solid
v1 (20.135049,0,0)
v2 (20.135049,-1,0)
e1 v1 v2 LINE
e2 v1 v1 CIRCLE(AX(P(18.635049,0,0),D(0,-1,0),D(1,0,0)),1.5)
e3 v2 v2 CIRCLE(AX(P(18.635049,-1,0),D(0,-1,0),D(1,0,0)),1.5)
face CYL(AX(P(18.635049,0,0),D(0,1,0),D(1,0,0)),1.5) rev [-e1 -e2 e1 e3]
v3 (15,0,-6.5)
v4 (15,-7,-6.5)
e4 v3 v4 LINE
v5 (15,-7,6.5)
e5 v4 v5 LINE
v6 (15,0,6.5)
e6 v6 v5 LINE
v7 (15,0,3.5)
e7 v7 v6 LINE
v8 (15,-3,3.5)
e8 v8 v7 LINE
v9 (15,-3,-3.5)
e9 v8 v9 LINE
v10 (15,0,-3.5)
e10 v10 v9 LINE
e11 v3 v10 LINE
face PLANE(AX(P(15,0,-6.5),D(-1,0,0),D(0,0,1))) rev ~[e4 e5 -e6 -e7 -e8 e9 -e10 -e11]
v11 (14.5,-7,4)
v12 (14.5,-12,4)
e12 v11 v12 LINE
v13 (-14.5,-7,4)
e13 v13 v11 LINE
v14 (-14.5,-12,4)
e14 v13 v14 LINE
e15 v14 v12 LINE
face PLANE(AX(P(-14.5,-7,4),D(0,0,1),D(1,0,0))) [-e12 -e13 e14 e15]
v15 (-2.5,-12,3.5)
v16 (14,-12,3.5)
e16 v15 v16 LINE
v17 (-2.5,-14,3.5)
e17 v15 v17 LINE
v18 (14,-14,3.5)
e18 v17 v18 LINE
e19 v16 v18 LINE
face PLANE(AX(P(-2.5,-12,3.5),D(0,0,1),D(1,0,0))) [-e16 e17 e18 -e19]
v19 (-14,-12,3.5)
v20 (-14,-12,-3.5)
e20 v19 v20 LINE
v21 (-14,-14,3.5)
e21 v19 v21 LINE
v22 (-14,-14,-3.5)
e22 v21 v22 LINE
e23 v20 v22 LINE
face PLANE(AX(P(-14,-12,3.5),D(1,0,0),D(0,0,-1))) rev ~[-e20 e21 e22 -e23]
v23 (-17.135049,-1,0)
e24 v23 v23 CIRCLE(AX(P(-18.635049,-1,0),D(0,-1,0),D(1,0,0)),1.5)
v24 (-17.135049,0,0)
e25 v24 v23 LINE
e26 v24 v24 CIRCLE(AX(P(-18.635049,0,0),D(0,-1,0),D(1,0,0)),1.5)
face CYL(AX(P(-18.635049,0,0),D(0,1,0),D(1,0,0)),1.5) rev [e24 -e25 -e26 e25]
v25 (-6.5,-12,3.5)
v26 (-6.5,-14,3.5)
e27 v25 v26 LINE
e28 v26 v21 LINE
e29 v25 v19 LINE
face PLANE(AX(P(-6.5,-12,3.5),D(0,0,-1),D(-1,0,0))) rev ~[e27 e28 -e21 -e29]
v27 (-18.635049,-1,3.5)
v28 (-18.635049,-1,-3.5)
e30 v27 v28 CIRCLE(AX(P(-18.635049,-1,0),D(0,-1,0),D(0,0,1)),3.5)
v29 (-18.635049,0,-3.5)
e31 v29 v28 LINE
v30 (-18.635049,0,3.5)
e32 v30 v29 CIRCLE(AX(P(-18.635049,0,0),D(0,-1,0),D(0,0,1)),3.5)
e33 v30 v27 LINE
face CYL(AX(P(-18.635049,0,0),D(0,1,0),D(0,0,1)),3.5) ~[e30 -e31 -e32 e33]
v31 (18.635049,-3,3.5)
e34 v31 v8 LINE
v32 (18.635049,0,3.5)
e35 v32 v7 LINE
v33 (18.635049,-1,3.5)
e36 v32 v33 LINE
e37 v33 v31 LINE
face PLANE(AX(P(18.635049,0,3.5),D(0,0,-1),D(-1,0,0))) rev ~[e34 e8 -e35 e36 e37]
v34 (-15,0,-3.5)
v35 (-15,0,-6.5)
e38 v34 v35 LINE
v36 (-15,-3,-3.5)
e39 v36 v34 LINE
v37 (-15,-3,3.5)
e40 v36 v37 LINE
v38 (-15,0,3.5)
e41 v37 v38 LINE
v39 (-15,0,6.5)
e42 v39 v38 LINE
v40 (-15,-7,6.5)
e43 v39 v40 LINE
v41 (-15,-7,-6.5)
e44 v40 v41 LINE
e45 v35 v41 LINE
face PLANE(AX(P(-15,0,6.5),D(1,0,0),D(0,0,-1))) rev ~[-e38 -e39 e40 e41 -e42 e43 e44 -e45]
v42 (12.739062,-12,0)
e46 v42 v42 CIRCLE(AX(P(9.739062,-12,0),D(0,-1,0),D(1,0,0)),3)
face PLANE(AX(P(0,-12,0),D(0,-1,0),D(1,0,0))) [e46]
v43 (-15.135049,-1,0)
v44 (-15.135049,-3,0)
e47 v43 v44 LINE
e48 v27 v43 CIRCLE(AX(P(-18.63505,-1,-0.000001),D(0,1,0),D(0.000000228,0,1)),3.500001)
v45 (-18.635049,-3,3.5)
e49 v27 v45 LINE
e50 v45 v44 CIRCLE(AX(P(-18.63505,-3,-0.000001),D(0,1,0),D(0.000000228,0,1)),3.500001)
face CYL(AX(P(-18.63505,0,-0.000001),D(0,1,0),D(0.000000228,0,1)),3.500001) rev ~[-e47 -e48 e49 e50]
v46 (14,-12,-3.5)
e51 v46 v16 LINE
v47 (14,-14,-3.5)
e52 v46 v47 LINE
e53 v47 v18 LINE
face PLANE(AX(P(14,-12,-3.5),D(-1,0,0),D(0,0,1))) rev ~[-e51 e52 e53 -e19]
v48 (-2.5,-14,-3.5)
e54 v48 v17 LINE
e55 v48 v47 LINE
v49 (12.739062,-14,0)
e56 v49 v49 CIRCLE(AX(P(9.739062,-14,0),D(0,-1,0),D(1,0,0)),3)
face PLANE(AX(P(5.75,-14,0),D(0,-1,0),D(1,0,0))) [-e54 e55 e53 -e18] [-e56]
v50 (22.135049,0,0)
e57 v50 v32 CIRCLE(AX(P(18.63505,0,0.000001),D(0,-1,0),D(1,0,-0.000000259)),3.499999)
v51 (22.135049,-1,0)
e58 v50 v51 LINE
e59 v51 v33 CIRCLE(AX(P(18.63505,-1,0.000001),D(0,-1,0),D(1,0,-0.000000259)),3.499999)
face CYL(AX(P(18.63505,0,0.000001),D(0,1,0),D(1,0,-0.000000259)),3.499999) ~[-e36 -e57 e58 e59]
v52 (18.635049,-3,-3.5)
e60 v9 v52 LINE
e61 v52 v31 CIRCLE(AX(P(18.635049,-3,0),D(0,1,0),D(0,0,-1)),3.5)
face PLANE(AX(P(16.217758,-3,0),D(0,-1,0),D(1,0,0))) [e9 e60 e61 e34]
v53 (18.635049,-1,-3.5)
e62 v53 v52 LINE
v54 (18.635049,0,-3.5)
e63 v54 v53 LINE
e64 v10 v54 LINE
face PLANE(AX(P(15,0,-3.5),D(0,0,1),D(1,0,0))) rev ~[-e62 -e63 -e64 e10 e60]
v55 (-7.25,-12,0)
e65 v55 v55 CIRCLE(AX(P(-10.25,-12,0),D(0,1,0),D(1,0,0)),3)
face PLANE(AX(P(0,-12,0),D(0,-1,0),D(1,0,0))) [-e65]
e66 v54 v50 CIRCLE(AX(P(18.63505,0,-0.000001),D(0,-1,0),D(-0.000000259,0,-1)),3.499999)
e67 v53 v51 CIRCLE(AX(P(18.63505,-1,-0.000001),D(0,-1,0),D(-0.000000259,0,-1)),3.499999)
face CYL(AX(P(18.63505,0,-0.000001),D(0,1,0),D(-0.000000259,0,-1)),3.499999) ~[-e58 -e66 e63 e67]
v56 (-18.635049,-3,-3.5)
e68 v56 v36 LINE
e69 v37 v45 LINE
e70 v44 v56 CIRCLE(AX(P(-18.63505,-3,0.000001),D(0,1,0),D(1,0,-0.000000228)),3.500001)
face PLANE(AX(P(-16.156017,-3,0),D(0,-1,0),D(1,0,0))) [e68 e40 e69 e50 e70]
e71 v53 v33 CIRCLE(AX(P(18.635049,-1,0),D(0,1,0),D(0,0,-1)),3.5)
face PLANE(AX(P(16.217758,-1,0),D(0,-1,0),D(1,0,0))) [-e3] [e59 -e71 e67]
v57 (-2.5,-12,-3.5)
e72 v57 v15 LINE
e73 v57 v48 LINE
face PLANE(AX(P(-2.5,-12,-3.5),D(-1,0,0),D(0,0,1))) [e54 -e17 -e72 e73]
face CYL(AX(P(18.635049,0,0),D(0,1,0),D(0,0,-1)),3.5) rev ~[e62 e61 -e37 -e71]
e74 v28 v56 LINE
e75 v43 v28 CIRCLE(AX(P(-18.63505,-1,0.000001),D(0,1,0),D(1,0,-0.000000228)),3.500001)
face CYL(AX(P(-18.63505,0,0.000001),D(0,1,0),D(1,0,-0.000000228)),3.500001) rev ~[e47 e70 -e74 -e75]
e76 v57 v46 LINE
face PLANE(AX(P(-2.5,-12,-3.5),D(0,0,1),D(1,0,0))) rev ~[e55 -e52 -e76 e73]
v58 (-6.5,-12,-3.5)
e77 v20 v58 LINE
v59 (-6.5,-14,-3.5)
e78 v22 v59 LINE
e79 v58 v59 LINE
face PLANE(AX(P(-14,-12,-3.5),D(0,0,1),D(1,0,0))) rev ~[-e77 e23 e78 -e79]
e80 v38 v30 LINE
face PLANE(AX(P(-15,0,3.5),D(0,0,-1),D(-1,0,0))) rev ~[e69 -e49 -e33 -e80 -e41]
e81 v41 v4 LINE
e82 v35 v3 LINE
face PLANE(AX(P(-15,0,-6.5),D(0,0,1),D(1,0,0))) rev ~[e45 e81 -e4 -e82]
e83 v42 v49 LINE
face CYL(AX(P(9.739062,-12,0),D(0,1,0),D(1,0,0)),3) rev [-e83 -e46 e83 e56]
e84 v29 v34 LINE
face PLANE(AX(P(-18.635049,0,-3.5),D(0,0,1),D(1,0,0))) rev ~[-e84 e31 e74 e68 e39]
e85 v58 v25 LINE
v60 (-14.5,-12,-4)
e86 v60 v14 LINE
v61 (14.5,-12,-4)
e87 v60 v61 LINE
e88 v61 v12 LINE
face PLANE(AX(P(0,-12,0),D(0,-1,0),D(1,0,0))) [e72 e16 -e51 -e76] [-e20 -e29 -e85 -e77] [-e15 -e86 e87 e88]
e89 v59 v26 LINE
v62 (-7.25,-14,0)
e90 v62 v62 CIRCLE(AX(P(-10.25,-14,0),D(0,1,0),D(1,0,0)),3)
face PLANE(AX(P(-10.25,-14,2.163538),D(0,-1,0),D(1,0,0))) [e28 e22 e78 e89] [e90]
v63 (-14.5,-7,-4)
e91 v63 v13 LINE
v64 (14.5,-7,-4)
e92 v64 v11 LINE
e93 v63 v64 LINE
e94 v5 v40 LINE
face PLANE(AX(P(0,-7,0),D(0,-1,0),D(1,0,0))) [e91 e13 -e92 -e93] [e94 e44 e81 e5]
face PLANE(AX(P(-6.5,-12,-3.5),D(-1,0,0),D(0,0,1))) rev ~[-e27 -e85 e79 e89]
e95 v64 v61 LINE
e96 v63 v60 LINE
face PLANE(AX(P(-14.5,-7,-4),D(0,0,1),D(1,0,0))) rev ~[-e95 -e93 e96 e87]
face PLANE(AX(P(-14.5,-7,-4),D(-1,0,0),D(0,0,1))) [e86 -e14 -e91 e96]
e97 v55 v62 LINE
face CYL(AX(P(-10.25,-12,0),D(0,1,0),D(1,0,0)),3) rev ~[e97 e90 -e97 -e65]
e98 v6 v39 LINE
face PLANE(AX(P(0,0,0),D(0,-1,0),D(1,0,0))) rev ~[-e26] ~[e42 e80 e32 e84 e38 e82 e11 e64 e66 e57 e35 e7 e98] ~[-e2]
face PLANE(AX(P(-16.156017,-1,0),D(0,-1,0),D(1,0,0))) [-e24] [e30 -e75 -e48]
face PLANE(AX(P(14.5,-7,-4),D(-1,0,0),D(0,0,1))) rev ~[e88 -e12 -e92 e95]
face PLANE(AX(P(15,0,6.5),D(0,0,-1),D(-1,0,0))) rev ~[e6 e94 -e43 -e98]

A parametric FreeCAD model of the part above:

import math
import FreeCAD as App
import Part
import Sketcher


def add_polygon(sketch, points):
    """Adds a closed chain of lines whose ends are joined by coincident constraints."""
    first, n = sketch.GeometryCount, len(points)
    for a, b in zip(points, points[1:] + points[:1]):
        sketch.addGeometry(Part.LineSegment(App.Vector(*a, 0), App.Vector(*b, 0)), False)
    for i in range(n):
        sketch.addConstraint(Sketcher.Constraint("Coincident", first + i, 2, first + (i + 1) % n, 1))

doc = App.newDocument("Part")
body = doc.addObject("PartDesign::Body", "Body")

# Sketch on XZ plane
sketch1 = body.newObject("Sketcher::SketchObject", "Sketch")
sketch1.AttachmentSupport = (doc.getObject("XZ_Plane"), [""])
sketch1.MapMode = "FlatFace"
add_polygon(sketch1, [(15, 6), (-15, 6), (-15, -6), (15, -6)])  # lines 0-3
sketch1.addConstraint([
    Sketcher.Constraint("Horizontal", 0),
    Sketcher.Constraint("Vertical", 1),
    Sketcher.Constraint("Horizontal", 2),
    Sketcher.Constraint("Vertical", 3),
    Sketcher.Constraint("Symmetric", 0, 2, 2, 2, -1, 1),
    Sketcher.Constraint("DistanceX", 0, 2, 0, 1, 30.0),
    Sketcher.Constraint("DistanceY", 1, 2, 1, 1, 13.0),
])
pad1 = body.newObject("PartDesign::Pad", "Pad")
pad1.Profile = sketch1
pad1.Length = 7

# Sketch on XZ plane
sketch2 = body.newObject("Sketcher::SketchObject", "Sketch001")
sketch2.AttachmentSupport = (doc.getObject("XZ_Plane"), [""])
sketch2.MapMode = "FlatFace"
sketch2.AttachmentOffset = App.Placement(App.Vector(0, 0, 7), App.Rotation())
add_polygon(sketch2, [(-14, 4), (-14, -4), (14, -4), (14, 4)])  # lines 0-3
sketch2.addConstraint([
    Sketcher.Constraint("Vertical", 0),
    Sketcher.Constraint("Horizontal", 1),
    Sketcher.Constraint("Vertical", 2),
    Sketcher.Constraint("Horizontal", 3),
    Sketcher.Constraint("Symmetric", 0, 2, 2, 2, -1, 1),
    Sketcher.Constraint("DistanceX", 1, 1, 1, 2, 29.0),
    Sketcher.Constraint("DistanceY", 0, 2, 0, 1, 8.0),
])
pad2 = body.newObject("PartDesign::Pad", "Pad001")
pad2.Profile = sketch2
pad2.Length = 5

# Sketch on XZ plane
sketch3 = body.newObject("Sketcher::SketchObject", "Sketch002")
sketch3.AttachmentSupport = (doc.getObject("XZ_Plane"), [""])
sketch3.MapMode = "FlatFace"
sketch3.AttachmentOffset = App.Placement(App.Vector(0, 0, 12), App.Rotation())
add_polygon(sketch3, [(-6.5, 3.5), (-14, 3.5), (-14, -3.5), (-6.5, -3.5)])  # lines 0-3
sketch3.addGeometry(Part.Circle(App.Vector(-10.2, 0, 0), App.Vector(0, 0, 1), 3), False)  # 4
add_polygon(sketch3, [(-2.5, 3.5), (-2.5, -3.5), (14, -3.5), (14, 3.5)])  # lines 5-8
sketch3.addGeometry(Part.Circle(App.Vector(9.7, 0, 0), App.Vector(0, 0, 1), 3), False)  # 9
sketch3.addConstraint([
    Sketcher.Constraint("Horizontal", 0),
    Sketcher.Constraint("Vertical", 1),
    Sketcher.Constraint("Horizontal", 2),
    Sketcher.Constraint("Vertical", 3),
    Sketcher.Constraint("Vertical", 5),
    Sketcher.Constraint("Horizontal", 6),
    Sketcher.Constraint("Vertical", 7),
    Sketcher.Constraint("Horizontal", 8),
    Sketcher.Constraint("Equal", 4, 9),
    Sketcher.Constraint("Symmetric", 0, 2, 6, 2, -1, 1),
    Sketcher.Constraint("PointOnObject", 4, 3, -1),
    Sketcher.Constraint("PointOnObject", 9, 3, -1),
    Sketcher.Constraint("Horizontal", 2, 2, 5, 2),
    Sketcher.Constraint("Horizontal", 3, 2, 7, 2),
    Sketcher.Constraint("Diameter", 4, 6.0),
    Sketcher.Constraint("DistanceY", 1, 2, 1, 1, 7.0),
    Sketcher.Constraint("DistanceX", 0, 2, 0, 1, 7.5),
    Sketcher.Constraint("DistanceX", 6, 1, 6, 2, 16.5),
    Sketcher.Constraint("DistanceX", 0, 2, -1, 1, 14.0),
    Sketcher.Constraint("DistanceX", 4, 3, -1, 1, 10.25),
    Sketcher.Constraint("DistanceX", -1, 1, 9, 3, 9.739062),
])
pad3 = body.newObject("PartDesign::Pad", "Pad002")
pad3.Profile = sketch3
pad3.Length = 2

# Sketch on XZ plane
sketch4 = body.newObject("Sketcher::SketchObject", "Sketch003")
sketch4.AttachmentSupport = (doc.getObject("XZ_Plane"), [""])
sketch4.MapMode = "FlatFace"
sketch4.addGeometry([
    Part.LineSegment(App.Vector(-15, -3.5, 0), App.Vector(-15, 3.5, 0)),  # 0
    Part.LineSegment(App.Vector(-15, 3.5, 0), App.Vector(-18.6, 3.5, 0)),  # 1
    Part.ArcOfCircle(Part.Circle(App.Vector(-18.6, 0, 0), App.Vector(0, 0, 1), 3.5), math.radians(90), math.radians(270)),  # 2
    Part.LineSegment(App.Vector(-18.6, -3.5, 0), App.Vector(-15, -3.5, 0)),  # 3
    Part.Circle(App.Vector(-18.6, 0, 0), App.Vector(0, 0, 1), 1.5),  # 4
    Part.LineSegment(App.Vector(18.6, 3.5, 0), App.Vector(15, 3.5, 0)),  # 5
    Part.LineSegment(App.Vector(15, 3.5, 0), App.Vector(15, -3.5, 0)),  # 6
    Part.LineSegment(App.Vector(15, -3.5, 0), App.Vector(18.6, -3.5, 0)),  # 7
    Part.ArcOfCircle(Part.Circle(App.Vector(18.6, 0, 0), App.Vector(0, 0, 1), 3.5), math.radians(-90), math.radians(0)),  # 8
    Part.ArcOfCircle(Part.Circle(App.Vector(18.6, 0, 0), App.Vector(0, 0, 1), 3.5), math.radians(0), math.radians(90)),  # 9
    Part.Circle(App.Vector(18.6, 0, 0), App.Vector(0, 0, 1), 1.5),  # 10
], False)
sketch4.addConstraint([
    Sketcher.Constraint("Coincident", 0, 2, 1, 1),
    Sketcher.Constraint("Tangent", 1, 2, 2, 1),
    Sketcher.Constraint("Tangent", 2, 2, 3, 1),
    Sketcher.Constraint("Coincident", 3, 2, 0, 1),
    Sketcher.Constraint("Coincident", 5, 2, 6, 1),
    Sketcher.Constraint("Coincident", 6, 2, 7, 1),
    Sketcher.Constraint("Tangent", 7, 2, 8, 1),
    Sketcher.Constraint("Tangent", 8, 2, 9, 1),
    Sketcher.Constraint("Tangent", 9, 2, 5, 1),
    Sketcher.Constraint("Vertical", 0),
    Sketcher.Constraint("Horizontal", 1),
    Sketcher.Constraint("Horizontal", 3),
    Sketcher.Constraint("Horizontal", 5),
    Sketcher.Constraint("Vertical", 6),
    Sketcher.Constraint("Horizontal", 7),
    Sketcher.Constraint("Coincident", 4, 3, 2, 3),
    Sketcher.Constraint("Coincident", 10, 3, 8, 3),
    Sketcher.Constraint("Equal", 2, 8),
    Sketcher.Constraint("Equal", 8, 9),
    Sketcher.Constraint("Equal", 4, 10),
    Sketcher.Constraint("Symmetric", 2, 3, 8, 3, -1, 1),
    Sketcher.Constraint("Symmetric", 0, 2, 5, 2, -2),
    Sketcher.Constraint("PointOnObject", 8, 2, -1),
    Sketcher.Constraint("Diameter", 4, 3.0),
    Sketcher.Constraint("Radius", 2, 3.5),
    Sketcher.Constraint("DistanceX", 0, 2, -1, 1, 15.0),
    Sketcher.Constraint("DistanceX", 1, 2, 1, 1, 3.635049),
])
pad4 = body.newObject("PartDesign::Pad", "Pad003")
pad4.Profile = sketch4
pad4.Length = 1

# Sketch on XZ plane
sketch5 = body.newObject("Sketcher::SketchObject", "Sketch004")
sketch5.AttachmentSupport = (doc.getObject("XZ_Plane"), [""])
sketch5.MapMode = "FlatFace"
sketch5.addGeometry([
    Part.LineSegment(App.Vector(-15, -3.5, 0), App.Vector(-15, 3.5, 0)),  # 0
    Part.LineSegment(App.Vector(-15, 3.5, 0), App.Vector(-18.6, 3.5, 0)),  # 1
    Part.ArcOfCircle(Part.Circle(App.Vector(-18.6, 0, 0), App.Vector(0, 0, 1), 3.5), math.radians(0), math.radians(90)),  # 2
    Part.ArcOfCircle(Part.Circle(App.Vector(-18.6, 0, 0), App.Vector(0, 0, 1), 3.5), math.radians(-90), math.radians(0)),  # 3
    Part.LineSegment(App.Vector(-18.6, -3.5, 0), App.Vector(-15, -3.5, 0)),  # 4
    Part.LineSegment(App.Vector(18.6, 3.5, 0), App.Vector(15, 3.5, 0)),  # 5
    Part.LineSegment(App.Vector(15, 3.5, 0), App.Vector(15, -3.5, 0)),  # 6
    Part.LineSegment(App.Vector(15, -3.5, 0), App.Vector(18.6, -3.5, 0)),  # 7
    Part.ArcOfCircle(Part.Circle(App.Vector(18.6, 0, 0), App.Vector(0, 0, 1), 3.5), math.radians(90), math.radians(270)),  # 8
], False)
sketch5.addConstraint([
    Sketcher.Constraint("Coincident", 0, 2, 1, 1),
    Sketcher.Constraint("Tangent", 1, 2, 2, 2),
    Sketcher.Constraint("Tangent", 2, 1, 3, 2),
    Sketcher.Constraint("Tangent", 3, 1, 4, 1),
    Sketcher.Constraint("Coincident", 4, 2, 0, 1),
    Sketcher.Constraint("Coincident", 5, 2, 6, 1),
    Sketcher.Constraint("Coincident", 6, 2, 7, 1),
    Sketcher.Constraint("Tangent", 7, 2, 8, 2),
    Sketcher.Constraint("Tangent", 8, 1, 5, 1),
    Sketcher.Constraint("Vertical", 0),
    Sketcher.Constraint("Horizontal", 1),
    Sketcher.Constraint("Horizontal", 4),
    Sketcher.Constraint("Horizontal", 5),
    Sketcher.Constraint("Vertical", 6),
    Sketcher.Constraint("Horizontal", 7),
    Sketcher.Constraint("Equal", 2, 3),
    Sketcher.Constraint("Equal", 3, 8),
    Sketcher.Constraint("Symmetric", 2, 3, 8, 3, -1, 1),
    Sketcher.Constraint("Symmetric", 0, 2, 5, 2, -2),
    Sketcher.Constraint("PointOnObject", 2, 1, -1),
    Sketcher.Constraint("Radius", 2, 3.500001),
    Sketcher.Constraint("DistanceX", 0, 2, -1, 1, 15.0),
    Sketcher.Constraint("DistanceX", 1, 2, 1, 1, 3.635049),
])
pad5 = body.newObject("PartDesign::Pad", "Pad004")
pad5.Profile = sketch5
pad5.Length = 3

doc.recompute()
